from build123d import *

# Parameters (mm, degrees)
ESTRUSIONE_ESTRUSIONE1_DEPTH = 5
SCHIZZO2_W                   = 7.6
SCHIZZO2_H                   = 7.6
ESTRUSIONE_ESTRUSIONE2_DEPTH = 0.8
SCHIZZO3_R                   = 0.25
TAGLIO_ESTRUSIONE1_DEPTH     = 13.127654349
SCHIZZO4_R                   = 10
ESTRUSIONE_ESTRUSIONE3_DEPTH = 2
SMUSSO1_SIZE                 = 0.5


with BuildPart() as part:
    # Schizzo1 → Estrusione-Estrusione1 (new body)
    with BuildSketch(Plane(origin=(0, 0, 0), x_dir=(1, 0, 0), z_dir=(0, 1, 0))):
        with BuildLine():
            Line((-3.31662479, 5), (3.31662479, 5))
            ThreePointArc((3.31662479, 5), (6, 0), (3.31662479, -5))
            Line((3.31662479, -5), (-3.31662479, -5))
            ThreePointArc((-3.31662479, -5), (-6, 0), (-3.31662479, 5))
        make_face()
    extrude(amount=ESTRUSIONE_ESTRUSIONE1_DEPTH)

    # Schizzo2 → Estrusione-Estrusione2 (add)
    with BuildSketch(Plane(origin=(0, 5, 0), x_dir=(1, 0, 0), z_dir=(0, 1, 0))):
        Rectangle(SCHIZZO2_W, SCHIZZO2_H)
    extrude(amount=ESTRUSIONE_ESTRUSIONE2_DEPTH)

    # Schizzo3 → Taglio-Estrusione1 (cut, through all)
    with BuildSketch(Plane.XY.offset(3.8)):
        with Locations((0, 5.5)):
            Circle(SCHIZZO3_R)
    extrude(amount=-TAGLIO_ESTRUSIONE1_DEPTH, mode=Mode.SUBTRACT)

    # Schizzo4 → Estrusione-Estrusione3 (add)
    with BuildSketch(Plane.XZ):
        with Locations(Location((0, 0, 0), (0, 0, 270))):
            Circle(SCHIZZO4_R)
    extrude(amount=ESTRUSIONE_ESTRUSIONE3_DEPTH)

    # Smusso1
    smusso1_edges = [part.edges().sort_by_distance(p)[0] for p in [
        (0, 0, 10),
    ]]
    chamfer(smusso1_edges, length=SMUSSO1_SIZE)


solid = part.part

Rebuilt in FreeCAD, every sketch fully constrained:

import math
import FreeCAD as App
import Part
import Sketcher

V = App.Vector
Q = App.Units.Quantity


def edges_at(feature, points):
    """Names of the edges that pass closest to the given points."""
    edges = feature.Shape.Edges
    near = lambda p: min(range(len(edges)), key=lambda i: edges[i].distToShape(Part.Vertex(*p))[0])
    return sorted({f"Edge{near(p) + 1}" for p in points})


def add_polygon(sketch, points):
    """Adds a closed chain of lines whose ends are joined by coincident constraints."""
    first, n = sketch.GeometryCount, len(points)
    for a, b in zip(points, points[1:] + points[:1]):
        sketch.addGeometry(Part.LineSegment(App.Vector(*a, 0), App.Vector(*b, 0)), False)
    for i in range(n):
        sketch.addConstraint(Sketcher.Constraint("Coincident", first + i, 2, first + (i + 1) % n, 1))

doc = App.newDocument("Part")
body = doc.addObject("PartDesign::Body", "Body")

# Sketch on XZ plane
sketch1 = doc.addObject("Sketcher::SketchObject", "Sketch")
body.addObject(sketch1)
sketch1.AttachmentSupport = (doc.XZ_Plane, [""])
sketch1.MapMode = "FlatFace"
sketch1.addGeometry(Part.LineSegment(V(3, -5, 0), V(-3, -5, 0)), False)
sketch1.addGeometry(Part.ArcOfCircle(Part.Circle(V(0, 0, 0), V(0, 0, 1), 6), math.radians(124), math.radians(236)), False)
sketch1.addGeometry(Part.LineSegment(V(-3, 5, 0), V(3, 5, 0)), False)
sketch1.addGeometry(Part.ArcOfCircle(Part.Circle(V(0, 0, 0), V(0, 0, 1), 6), math.radians(-56), math.radians(56)), False)
sketch1.addConstraint(Sketcher.Constraint("Coincident", 0, 2, 1, 2))
sketch1.addConstraint(Sketcher.Constraint("Coincident", 1, 1, 2, 1))
sketch1.addConstraint(Sketcher.Constraint("Coincident", 2, 2, 3, 2))
sketch1.addConstraint(Sketcher.Constraint("Coincident", 3, 1, 0, 1))
sketch1.addConstraint(Sketcher.Constraint("Horizontal", 0))
sketch1.addConstraint(Sketcher.Constraint("Horizontal", 2))
sketch1.addConstraint(Sketcher.Constraint("Coincident", 1, 3, -1, 1))
sketch1.addConstraint(Sketcher.Constraint("Coincident", 3, 3, -1, 1))
sketch1.addConstraint(Sketcher.Constraint("Equal", 1, 3))
sketch1.addConstraint(Sketcher.Constraint("Vertical", 0, 2, 1, 1))
sketch1.addConstraint(Sketcher.Constraint("Radius", 1, Q("6 mm")))
sketch1.addConstraint(Sketcher.Constraint("DistanceY", 0, 2, -1, 1, Q("5 mm")))
pad1 = doc.addObject("PartDesign::Pad", "Pad")
body.addObject(pad1)
pad1.Profile = sketch1
pad1.Length = 5
pad1.Reversed = True

# Sketch on XZ plane
sketch2 = doc.addObject("Sketcher::SketchObject", "Sketch001")
body.addObject(sketch2)
sketch2.AttachmentSupport = (doc.XZ_Plane, [""])
sketch2.MapMode = "FlatFace"
sketch2.AttachmentOffset = App.Placement(V(0, 0, -5), App.Rotation())
add_polygon(sketch2, [(-4, -4), (-4, 4), (4, 4), (4, -4)])  # lines 0-3
sketch2.addConstraint(Sketcher.Constraint("Vertical", 0))
sketch2.addConstraint(Sketcher.Constraint("Horizontal", 1))
sketch2.addConstraint(Sketcher.Constraint("Vertical", 2))
sketch2.addConstraint(Sketcher.Constraint("Horizontal", 3))
sketch2.addConstraint(Sketcher.Constraint("Symmetric", 0, 2, 2, 2, -1, 1))
sketch2.addConstraint(Sketcher.Constraint("Equal", 3, 0))
sketch2.addConstraint(Sketcher.Constraint("DistanceX", 1, 1, 1, 2, Q("7.6 mm")))
pad2 = doc.addObject("PartDesign::Pad", "Pad001")
body.addObject(pad2)
pad2.Profile = sketch2
pad2.Length = 0.8
pad2.Reversed = True

# Sketch on XY plane
sketch3 = doc.addObject("Sketcher::SketchObject", "Sketch002")
body.addObject(sketch3)
sketch3.AttachmentSupport = (doc.XY_Plane, [""])
sketch3.MapMode = "FlatFace"
sketch3.AttachmentOffset = App.Placement(V(0, 0, 3.8), App.Rotation())
sketch3.addGeometry(Part.Circle(V(0, 5.5, 0), V(0, 0, 1), 0.25), False)
sketch3.addConstraint(Sketcher.Constraint("PointOnObject", 0, 3, -2))
sketch3.addConstraint(Sketcher.Constraint("Diameter", 0, Q("0.5 mm")))
sketch3.addConstraint(Sketcher.Constraint("DistanceY", -1, 1, 0, 3, Q("5.5 mm")))
pocket1 = doc.addObject("PartDesign::Pocket", "Pocket")
body.addObject(pocket1)
pocket1.Profile = sketch3
pocket1.Type = "ThroughAll"

# Sketch on XZ plane
sketch4 = doc.addObject("Sketcher::SketchObject", "Sketch003")
body.addObject(sketch4)
sketch4.AttachmentSupport = (doc.XZ_Plane, [""])
sketch4.MapMode = "FlatFace"
sketch4.addGeometry(Part.Circle(V(0, 0, 0), V(0, 0, 1), 10), False)
sketch4.addConstraint(Sketcher.Constraint("Coincident", 0, 3, -1, 1))
sketch4.addConstraint(Sketcher.Constraint("Diameter", 0, Q("20 mm")))
pad3 = doc.addObject("PartDesign::Pad", "Pad002")
body.addObject(pad3)
pad3.Profile = sketch4
pad3.Length = 2
doc.recompute()

chamfer = doc.addObject("PartDesign::Chamfer", "Chamfer")
body.addObject(chamfer)
chamfer.Base = (pad3, edges_at(pad3, [(0, 0, 10)]))
chamfer.Size = 0.5

doc.recompute()
